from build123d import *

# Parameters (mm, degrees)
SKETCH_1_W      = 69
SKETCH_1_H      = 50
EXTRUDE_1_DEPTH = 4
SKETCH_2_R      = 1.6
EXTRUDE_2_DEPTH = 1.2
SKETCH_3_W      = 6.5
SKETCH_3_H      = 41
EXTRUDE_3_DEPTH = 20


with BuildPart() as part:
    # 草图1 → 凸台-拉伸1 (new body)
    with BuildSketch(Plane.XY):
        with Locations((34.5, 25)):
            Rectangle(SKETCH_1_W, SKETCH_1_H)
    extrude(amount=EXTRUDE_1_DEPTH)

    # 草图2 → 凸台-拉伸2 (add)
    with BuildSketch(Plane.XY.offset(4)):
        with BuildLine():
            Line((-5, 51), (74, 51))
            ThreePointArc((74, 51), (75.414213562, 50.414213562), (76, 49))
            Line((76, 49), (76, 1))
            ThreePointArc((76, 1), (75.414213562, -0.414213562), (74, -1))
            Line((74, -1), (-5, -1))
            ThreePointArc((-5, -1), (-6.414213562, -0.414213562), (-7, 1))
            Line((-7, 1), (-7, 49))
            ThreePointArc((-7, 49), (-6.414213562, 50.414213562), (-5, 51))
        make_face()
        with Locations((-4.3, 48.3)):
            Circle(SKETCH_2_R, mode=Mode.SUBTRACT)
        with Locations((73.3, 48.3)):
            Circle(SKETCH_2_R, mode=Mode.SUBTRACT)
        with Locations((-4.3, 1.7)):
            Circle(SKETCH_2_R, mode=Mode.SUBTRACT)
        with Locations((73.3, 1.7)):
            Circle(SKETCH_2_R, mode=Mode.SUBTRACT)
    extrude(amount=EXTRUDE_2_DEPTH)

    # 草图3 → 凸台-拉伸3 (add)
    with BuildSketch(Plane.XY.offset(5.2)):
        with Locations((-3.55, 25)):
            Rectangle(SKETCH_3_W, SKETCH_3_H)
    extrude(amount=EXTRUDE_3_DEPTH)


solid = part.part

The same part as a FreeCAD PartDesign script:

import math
import FreeCAD as App
import Part
import Sketcher


def add_polygon(sketch, points):
    """Adds a closed chain of lines whose ends are joined by coincident constraints."""
    first, n = sketch.GeometryCount, len(points)
    for a, b in zip(points, points[1:] + points[:1]):
        sketch.addGeometry(Part.LineSegment(App.Vector(*a, 0), App.Vector(*b, 0)), False)
    for i in range(n):
        sketch.addConstraint(Sketcher.Constraint("Coincident", first + i, 2, first + (i + 1) % n, 1))

doc = App.newDocument("Part")
body = doc.addObject("PartDesign::Body", "Body")

sketch1 = doc.addObject("Sketcher::SketchObject", "Sketch")
body.addObject(sketch1)
sketch1.AttachmentSupport = (doc.XY_Plane, [""])
sketch1.MapMode = "FlatFace"
add_polygon(sketch1, [(0, 50), (0, 0), (69, 0), (69, 50)])
sketch1.addConstraint([
    Sketcher.Constraint("Vertical", 0),
    Sketcher.Constraint("Horizontal", 1),
    Sketcher.Constraint("Vertical", 2),
    Sketcher.Constraint("Horizontal", 3),
    Sketcher.Constraint("Coincident", 0, 2, -1, 1),
    Sketcher.Constraint("DistanceX", 1, 1, 1, 2, 69.0),
    Sketcher.Constraint("DistanceY", 0, 2, 0, 1, 50.0),
])
pad1 = doc.addObject("PartDesign::Pad", "Pad")
body.addObject(pad1)
pad1.Profile = sketch1
pad1.Length = 4

sketch2 = doc.addObject("Sketcher::SketchObject", "Sketch001")
body.addObject(sketch2)
sketch2.AttachmentSupport = (doc.XY_Plane, [""])
sketch2.MapMode = "FlatFace"
sketch2.AttachmentOffset = App.Placement(App.Vector(0, 0, 4), App.Rotation())
sketch2.addGeometry([
    Part.LineSegment(App.Vector(74, 51, 0), App.Vector(-5, 51, 0)),
    Part.ArcOfCircle(Part.Circle(App.Vector(-5, 49, 0), App.Vector(0, 0, 1), 2), math.radians(90), math.radians(180)),
    Part.LineSegment(App.Vector(-7, 49, 0), App.Vector(-7, 1, 0)),
    Part.ArcOfCircle(Part.Circle(App.Vector(-5, 1, 0), App.Vector(0, 0, 1), 2), math.radians(-180), math.radians(-90)),
    Part.LineSegment(App.Vector(-5, -1, 0), App.Vector(74, -1, 0)),
    Part.ArcOfCircle(Part.Circle(App.Vector(74, 1, 0), App.Vector(0, 0, 1), 2), math.radians(-90), math.radians(0)),
    Part.LineSegment(App.Vector(76, 1, 0), App.Vector(76, 49, 0)),
    Part.ArcOfCircle(Part.Circle(App.Vector(74, 49, 0), App.Vector(0, 0, 1), 2), math.radians(0), math.radians(90)),
    Part.Circle(App.Vector(73.3, 1.7, 0), App.Vector(0, 0, 1), 1.6),
    Part.Circle(App.Vector(-4.3, 1.7, 0), App.Vector(0, 0, 1), 1.6),
    Part.Circle(App.Vector(73.3, 48.3, 0), App.Vector(0, 0, 1), 1.6),
    Part.Circle(App.Vector(-4.3, 48.3, 0), App.Vector(0, 0, 1), 1.6),
], False)
sketch2.addConstraint([
    Sketcher.Constraint("Tangent", 0, 2, 1, 1),
    Sketcher.Constraint("Tangent", 1, 2, 2, 1),
    Sketcher.Constraint("Tangent", 2, 2, 3, 1),
    Sketcher.Constraint("Tangent", 3, 2, 4, 1),
    Sketcher.Constraint("Tangent", 4, 2, 5, 1),
    Sketcher.Constraint("Tangent", 5, 2, 6, 1),
    Sketcher.Constraint("Tangent", 6, 2, 7, 1),
    Sketcher.Constraint("Tangent", 7, 2, 0, 1),
    Sketcher.Constraint("Horizontal", 0),
    Sketcher.Constraint("Vertical", 2),
    Sketcher.Constraint("Horizontal", 4),
    Sketcher.Constraint("Vertical", 6),
    Sketcher.Constraint("Equal", 1, 3),
    Sketcher.Constraint("Equal", 3, 5),
    Sketcher.Constraint("Equal", 5, 7),
    Sketcher.Constraint("Equal", 8, 9),
    Sketcher.Constraint("Equal", 9, 10),
    Sketcher.Constraint("Equal", 10, 11),
    Sketcher.Constraint("Horizontal", 8, 3, 9, 3),
    Sketcher.Constraint("Horizontal", 10, 3, 11, 3),
    Sketcher.Constraint("Vertical", 8, 3, 10, 3),
    Sketcher.Constraint("Vertical", 9, 3, 11, 3),
    Sketcher.Constraint("Radius", 1, 2.0),
    Sketcher.Constraint("Diameter", 8, 3.2),
    Sketcher.Constraint("DistanceX", 0, 2, 0, 1, 79.0),
    Sketcher.Constraint("DistanceY", 2, 2, 2, 1, 48.0),
    Sketcher.Constraint("DistanceX", 1, 3, -1, 1, 5.0),
    Sketcher.Constraint("DistanceY", -1, 1, 1, 3, 49.0),
    Sketcher.Constraint("DistanceX", -1, 1, 8, 3, 73.3),
    Sketcher.Constraint("DistanceY", -1, 1, 8, 3, 1.7),
    Sketcher.Constraint("DistanceX", 9, 3, -1, 1, 4.3),
    Sketcher.Constraint("DistanceY", -1, 1, 10, 3, 48.3),
])
pad2 = doc.addObject("PartDesign::Pad", "Pad001")
body.addObject(pad2)
pad2.Profile = sketch2
pad2.Length = 1.2

sketch3 = doc.addObject("Sketcher::SketchObject", "Sketch002")
body.addObject(sketch3)
sketch3.AttachmentSupport = (doc.XY_Plane, [""])
sketch3.MapMode = "FlatFace"
sketch3.AttachmentOffset = App.Placement(App.Vector(0, 0, 5.2), App.Rotation())
add_polygon(sketch3, [(-7, 46), (-7, 4), (0, 4), (0, 46)])
sketch3.addConstraint([
    Sketcher.Constraint("Vertical", 0),
    Sketcher.Constraint("Horizontal", 1),
    Sketcher.Constraint("Vertical", 2),
    Sketcher.Constraint("Horizontal", 3),
    Sketcher.Constraint("DistanceY", 0, 2, 0, 1, 41.0),
    Sketcher.Constraint("DistanceX", 1, 1, 1, 2, 6.5),
    Sketcher.Constraint("DistanceX", 0, 2, -1, 1, 6.8),
    Sketcher.Constraint("DistanceY", -1, 1, 0, 2, 4.5),
])
pad3 = doc.addObject("PartDesign::Pad", "Pad002")
body.addObject(pad3)
pad3.Profile = sketch3
pad3.Length = 20

doc.recompute()
